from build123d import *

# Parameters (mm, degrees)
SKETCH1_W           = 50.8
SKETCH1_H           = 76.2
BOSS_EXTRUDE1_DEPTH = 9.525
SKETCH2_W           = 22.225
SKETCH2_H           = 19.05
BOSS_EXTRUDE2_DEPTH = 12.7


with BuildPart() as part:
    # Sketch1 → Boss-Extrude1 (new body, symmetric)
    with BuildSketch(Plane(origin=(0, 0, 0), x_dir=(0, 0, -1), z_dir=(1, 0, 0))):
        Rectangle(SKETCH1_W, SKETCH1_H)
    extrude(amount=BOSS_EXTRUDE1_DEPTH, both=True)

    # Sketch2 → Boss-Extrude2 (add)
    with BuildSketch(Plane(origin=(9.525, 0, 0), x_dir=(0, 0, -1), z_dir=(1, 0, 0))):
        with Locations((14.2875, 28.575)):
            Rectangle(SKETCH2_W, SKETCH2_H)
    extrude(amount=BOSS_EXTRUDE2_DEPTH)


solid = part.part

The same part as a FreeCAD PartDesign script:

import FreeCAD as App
import Part
import Sketcher
from FreeCAD import Vector
Q = App.Units.Quantity

doc = App.newDocument("Part")
body = doc.addObject("PartDesign::Body", "Body")

# Sketch on YZ plane
sketch1 = body.newObject("Sketcher::SketchObject", "Sketch")
sketch1.AttachmentSupport = (doc.getObject("YZ_Plane"), [""])
sketch1.MapMode = "FlatFace"
sketch1.addGeometry(Part.LineSegment(Vector(38, 25, 0), Vector(-38, 25, 0)), False)
sketch1.addGeometry(Part.LineSegment(Vector(-38, 25, 0), Vector(-38, -25, 0)), False)
sketch1.addGeometry(Part.LineSegment(Vector(-38, -25, 0), Vector(38, -25, 0)), False)
sketch1.addGeometry(Part.LineSegment(Vector(38, -25, 0), Vector(38, 25, 0)), False)
sketch1.addConstraint(Sketcher.Constraint("Coincident", 0, 2, 1, 1))
sketch1.addConstraint(Sketcher.Constraint("Coincident", 1, 2, 2, 1))
sketch1.addConstraint(Sketcher.Constraint("Coincident", 2, 2, 3, 1))
sketch1.addConstraint(Sketcher.Constraint("Coincident", 3, 2, 0, 1))
sketch1.addConstraint(Sketcher.Constraint("Horizontal", 0))
sketch1.addConstraint(Sketcher.Constraint("Vertical", 1))
sketch1.addConstraint(Sketcher.Constraint("Horizontal", 2))
sketch1.addConstraint(Sketcher.Constraint("Vertical", 3))
sketch1.addConstraint(Sketcher.Constraint("Symmetric", 0, 2, 2, 2, -1, 1))
sketch1.addConstraint(Sketcher.Constraint("DistanceX", 0, 2, 0, 1, Q("3 in")))
sketch1.addConstraint(Sketcher.Constraint("DistanceY", 1, 2, 1, 1, Q("2 in")))
pad1 = body.newObject("PartDesign::Pad", "Pad")
pad1.Profile = sketch1
pad1.Length = Q("0.75 in")
pad1.Midplane = True

# Sketch on YZ plane
sketch2 = body.newObject("Sketcher::SketchObject", "Sketch001")
sketch2.AttachmentSupport = (doc.getObject("YZ_Plane"), [""])
sketch2.MapMode = "FlatFace"
sketch2.AttachmentOffset = App.Placement(Vector(0, 0, 0.375 * 25.4), App.Rotation())
sketch2.addGeometry(Part.LineSegment(Vector(38, -3, 0), Vector(19, -3, 0)), False)
sketch2.addGeometry(Part.LineSegment(Vector(19, -3, 0), Vector(19, -25, 0)), False)
sketch2.addGeometry(Part.LineSegment(Vector(19, -25, 0), Vector(38, -25, 0)), False)
sketch2.addGeometry(Part.LineSegment(Vector(38, -25, 0), Vector(38, -3, 0)), False)
sketch2.addConstraint(Sketcher.Constraint("Coincident", 0, 2, 1, 1))
sketch2.addConstraint(Sketcher.Constraint("Coincident", 1, 2, 2, 1))
sketch2.addConstraint(Sketcher.Constraint("Coincident", 2, 2, 3, 1))
sketch2.addConstraint(Sketcher.Constraint("Coincident", 3, 2, 0, 1))
sketch2.addConstraint(Sketcher.Constraint("Horizontal", 0))
sketch2.addConstraint(Sketcher.Constraint("Vertical", 1))
sketch2.addConstraint(Sketcher.Constraint("Horizontal", 2))
sketch2.addConstraint(Sketcher.Constraint("Vertical", 3))
sketch2.addConstraint(Sketcher.Constraint("DistanceY", 1, 2, -1, 1, Q("1 in")))
sketch2.addConstraint(Sketcher.Constraint("DistanceX", 0, 2, 0, 1, Q("0.75 in")))
sketch2.addConstraint(Sketcher.Constraint("DistanceX", -1, 1, 2, 2, Q("1.5 in")))
sketch2.addConstraint(Sketcher.Constraint("DistanceY", 1, 2, 1, 1, Q("0.875 in")))
pad2 = body.newObject("PartDesign::Pad", "Pad001")
pad2.Profile = sketch2
pad2.Length = Q("0.5 in")

doc.recompute()
